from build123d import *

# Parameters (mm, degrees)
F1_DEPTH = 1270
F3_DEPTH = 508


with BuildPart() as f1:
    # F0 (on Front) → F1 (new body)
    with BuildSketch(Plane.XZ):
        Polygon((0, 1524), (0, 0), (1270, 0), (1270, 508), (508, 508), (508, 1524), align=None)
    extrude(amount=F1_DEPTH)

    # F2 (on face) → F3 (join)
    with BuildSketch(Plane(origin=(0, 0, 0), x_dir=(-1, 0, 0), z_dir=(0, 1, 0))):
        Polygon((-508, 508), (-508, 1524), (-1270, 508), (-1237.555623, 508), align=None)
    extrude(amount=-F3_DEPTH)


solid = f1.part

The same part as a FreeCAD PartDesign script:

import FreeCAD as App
import Part
import Sketcher

V = App.Vector
Q = App.Units.Quantity


def add_polygon(sketch, points):
    """Adds a closed chain of lines whose ends are joined by coincident constraints."""
    first, n = sketch.GeometryCount, len(points)
    for a, b in zip(points, points[1:] + points[:1]):
        sketch.addGeometry(Part.LineSegment(App.Vector(*a, 0), App.Vector(*b, 0)), False)
    for i in range(n):
        sketch.addConstraint(Sketcher.Constraint("Coincident", first + i, 2, first + (i + 1) % n, 1))

doc = App.newDocument("Part")
params = doc.addObject("Spreadsheet::Sheet", "Params")
for row, (alias, value) in enumerate([
    ("sketch1_width", "50 in"),
    ("sketch1_width2", "30 in"),
    ("sketch1_height", "60 in"),
    ("pad1_length", "50 in"),
    ("sketch2_width", "30 in"),
    ("sketch2_height", "40 in"),
    ("pad2_length", "20 in"),
], start=1):
    params.set(f"A{row}", alias)
    params.set(f"B{row}", "=" + value)
    params.setAlias(f"B{row}", alias)

body = doc.addObject("PartDesign::Body", "Body")

# Sketch on XZ plane
sketch1 = body.newObject("Sketcher::SketchObject", "Sketch")
sketch1.AttachmentSupport = (doc.getObject("XZ_Plane"), [""])
sketch1.MapMode = "FlatFace"
add_polygon(sketch1, [(0, 1524), (0, 0), (1270, 0), (1270, 508), (508, 508), (508, 1524)])  # lines 0-5
sketch1.addConstraint([
    Sketcher.Constraint("Vertical", 0),
    Sketcher.Constraint("Horizontal", 1),
    Sketcher.Constraint("Vertical", 2),
    Sketcher.Constraint("Horizontal", 3),
    Sketcher.Constraint("Vertical", 4),
    Sketcher.Constraint("Horizontal", 5),
    Sketcher.Constraint("Coincident", 0, 2, -1, 1),
    Sketcher.Constraint("Equal", 5, 2),
    Sketcher.Constraint("DistanceX", 1, 1, 1, 2, Q("50 in")),
    Sketcher.Constraint("DistanceX", 3, 2, 3, 1, Q("30 in")),
    Sketcher.Constraint("DistanceY", 0, 2, 0, 1, Q("60 in")),
])
sketch1.setExpression("Constraints[14]", "Params.sketch1_width")
sketch1.setExpression("Constraints[15]", "Params.sketch1_width2")
sketch1.setExpression("Constraints[16]", "Params.sketch1_height")
pad1 = body.newObject("PartDesign::Pad", "Pad")
pad1.Profile = sketch1
pad1.setExpression("Length", "Params.pad1_length")

# Sketch on XZ plane
sketch2 = body.newObject("Sketcher::SketchObject", "Sketch001")
sketch2.AttachmentSupport = (doc.getObject("XZ_Plane"), [""])
sketch2.MapMode = "FlatFace"
add_polygon(sketch2, [(508, 508), (508, 1524), (1270, 508)])  # lines 0-2
sketch2.addConstraint([
    Sketcher.Constraint("Vertical", 0),
    Sketcher.Constraint("Horizontal", 2),
    Sketcher.Constraint("DistanceX", 2, 2, 2, 1, Q("30 in")),
    Sketcher.Constraint("DistanceY", 0, 1, 0, 2, Q("40 in")),
    Sketcher.Constraint("DistanceX", -1, 1, 0, 2, Q("20 in")),
    Sketcher.Constraint("DistanceY", -1, 1, 0, 2, Q("60 in")),
])
sketch2.setExpression("Constraints[5]", "Params.sketch2_width")
sketch2.setExpression("Constraints[6]", "Params.sketch2_height")
pad2 = body.newObject("PartDesign::Pad", "Pad001")
pad2.Profile = sketch2
pad2.setExpression("Length", "Params.pad2_length")

doc.recompute()
